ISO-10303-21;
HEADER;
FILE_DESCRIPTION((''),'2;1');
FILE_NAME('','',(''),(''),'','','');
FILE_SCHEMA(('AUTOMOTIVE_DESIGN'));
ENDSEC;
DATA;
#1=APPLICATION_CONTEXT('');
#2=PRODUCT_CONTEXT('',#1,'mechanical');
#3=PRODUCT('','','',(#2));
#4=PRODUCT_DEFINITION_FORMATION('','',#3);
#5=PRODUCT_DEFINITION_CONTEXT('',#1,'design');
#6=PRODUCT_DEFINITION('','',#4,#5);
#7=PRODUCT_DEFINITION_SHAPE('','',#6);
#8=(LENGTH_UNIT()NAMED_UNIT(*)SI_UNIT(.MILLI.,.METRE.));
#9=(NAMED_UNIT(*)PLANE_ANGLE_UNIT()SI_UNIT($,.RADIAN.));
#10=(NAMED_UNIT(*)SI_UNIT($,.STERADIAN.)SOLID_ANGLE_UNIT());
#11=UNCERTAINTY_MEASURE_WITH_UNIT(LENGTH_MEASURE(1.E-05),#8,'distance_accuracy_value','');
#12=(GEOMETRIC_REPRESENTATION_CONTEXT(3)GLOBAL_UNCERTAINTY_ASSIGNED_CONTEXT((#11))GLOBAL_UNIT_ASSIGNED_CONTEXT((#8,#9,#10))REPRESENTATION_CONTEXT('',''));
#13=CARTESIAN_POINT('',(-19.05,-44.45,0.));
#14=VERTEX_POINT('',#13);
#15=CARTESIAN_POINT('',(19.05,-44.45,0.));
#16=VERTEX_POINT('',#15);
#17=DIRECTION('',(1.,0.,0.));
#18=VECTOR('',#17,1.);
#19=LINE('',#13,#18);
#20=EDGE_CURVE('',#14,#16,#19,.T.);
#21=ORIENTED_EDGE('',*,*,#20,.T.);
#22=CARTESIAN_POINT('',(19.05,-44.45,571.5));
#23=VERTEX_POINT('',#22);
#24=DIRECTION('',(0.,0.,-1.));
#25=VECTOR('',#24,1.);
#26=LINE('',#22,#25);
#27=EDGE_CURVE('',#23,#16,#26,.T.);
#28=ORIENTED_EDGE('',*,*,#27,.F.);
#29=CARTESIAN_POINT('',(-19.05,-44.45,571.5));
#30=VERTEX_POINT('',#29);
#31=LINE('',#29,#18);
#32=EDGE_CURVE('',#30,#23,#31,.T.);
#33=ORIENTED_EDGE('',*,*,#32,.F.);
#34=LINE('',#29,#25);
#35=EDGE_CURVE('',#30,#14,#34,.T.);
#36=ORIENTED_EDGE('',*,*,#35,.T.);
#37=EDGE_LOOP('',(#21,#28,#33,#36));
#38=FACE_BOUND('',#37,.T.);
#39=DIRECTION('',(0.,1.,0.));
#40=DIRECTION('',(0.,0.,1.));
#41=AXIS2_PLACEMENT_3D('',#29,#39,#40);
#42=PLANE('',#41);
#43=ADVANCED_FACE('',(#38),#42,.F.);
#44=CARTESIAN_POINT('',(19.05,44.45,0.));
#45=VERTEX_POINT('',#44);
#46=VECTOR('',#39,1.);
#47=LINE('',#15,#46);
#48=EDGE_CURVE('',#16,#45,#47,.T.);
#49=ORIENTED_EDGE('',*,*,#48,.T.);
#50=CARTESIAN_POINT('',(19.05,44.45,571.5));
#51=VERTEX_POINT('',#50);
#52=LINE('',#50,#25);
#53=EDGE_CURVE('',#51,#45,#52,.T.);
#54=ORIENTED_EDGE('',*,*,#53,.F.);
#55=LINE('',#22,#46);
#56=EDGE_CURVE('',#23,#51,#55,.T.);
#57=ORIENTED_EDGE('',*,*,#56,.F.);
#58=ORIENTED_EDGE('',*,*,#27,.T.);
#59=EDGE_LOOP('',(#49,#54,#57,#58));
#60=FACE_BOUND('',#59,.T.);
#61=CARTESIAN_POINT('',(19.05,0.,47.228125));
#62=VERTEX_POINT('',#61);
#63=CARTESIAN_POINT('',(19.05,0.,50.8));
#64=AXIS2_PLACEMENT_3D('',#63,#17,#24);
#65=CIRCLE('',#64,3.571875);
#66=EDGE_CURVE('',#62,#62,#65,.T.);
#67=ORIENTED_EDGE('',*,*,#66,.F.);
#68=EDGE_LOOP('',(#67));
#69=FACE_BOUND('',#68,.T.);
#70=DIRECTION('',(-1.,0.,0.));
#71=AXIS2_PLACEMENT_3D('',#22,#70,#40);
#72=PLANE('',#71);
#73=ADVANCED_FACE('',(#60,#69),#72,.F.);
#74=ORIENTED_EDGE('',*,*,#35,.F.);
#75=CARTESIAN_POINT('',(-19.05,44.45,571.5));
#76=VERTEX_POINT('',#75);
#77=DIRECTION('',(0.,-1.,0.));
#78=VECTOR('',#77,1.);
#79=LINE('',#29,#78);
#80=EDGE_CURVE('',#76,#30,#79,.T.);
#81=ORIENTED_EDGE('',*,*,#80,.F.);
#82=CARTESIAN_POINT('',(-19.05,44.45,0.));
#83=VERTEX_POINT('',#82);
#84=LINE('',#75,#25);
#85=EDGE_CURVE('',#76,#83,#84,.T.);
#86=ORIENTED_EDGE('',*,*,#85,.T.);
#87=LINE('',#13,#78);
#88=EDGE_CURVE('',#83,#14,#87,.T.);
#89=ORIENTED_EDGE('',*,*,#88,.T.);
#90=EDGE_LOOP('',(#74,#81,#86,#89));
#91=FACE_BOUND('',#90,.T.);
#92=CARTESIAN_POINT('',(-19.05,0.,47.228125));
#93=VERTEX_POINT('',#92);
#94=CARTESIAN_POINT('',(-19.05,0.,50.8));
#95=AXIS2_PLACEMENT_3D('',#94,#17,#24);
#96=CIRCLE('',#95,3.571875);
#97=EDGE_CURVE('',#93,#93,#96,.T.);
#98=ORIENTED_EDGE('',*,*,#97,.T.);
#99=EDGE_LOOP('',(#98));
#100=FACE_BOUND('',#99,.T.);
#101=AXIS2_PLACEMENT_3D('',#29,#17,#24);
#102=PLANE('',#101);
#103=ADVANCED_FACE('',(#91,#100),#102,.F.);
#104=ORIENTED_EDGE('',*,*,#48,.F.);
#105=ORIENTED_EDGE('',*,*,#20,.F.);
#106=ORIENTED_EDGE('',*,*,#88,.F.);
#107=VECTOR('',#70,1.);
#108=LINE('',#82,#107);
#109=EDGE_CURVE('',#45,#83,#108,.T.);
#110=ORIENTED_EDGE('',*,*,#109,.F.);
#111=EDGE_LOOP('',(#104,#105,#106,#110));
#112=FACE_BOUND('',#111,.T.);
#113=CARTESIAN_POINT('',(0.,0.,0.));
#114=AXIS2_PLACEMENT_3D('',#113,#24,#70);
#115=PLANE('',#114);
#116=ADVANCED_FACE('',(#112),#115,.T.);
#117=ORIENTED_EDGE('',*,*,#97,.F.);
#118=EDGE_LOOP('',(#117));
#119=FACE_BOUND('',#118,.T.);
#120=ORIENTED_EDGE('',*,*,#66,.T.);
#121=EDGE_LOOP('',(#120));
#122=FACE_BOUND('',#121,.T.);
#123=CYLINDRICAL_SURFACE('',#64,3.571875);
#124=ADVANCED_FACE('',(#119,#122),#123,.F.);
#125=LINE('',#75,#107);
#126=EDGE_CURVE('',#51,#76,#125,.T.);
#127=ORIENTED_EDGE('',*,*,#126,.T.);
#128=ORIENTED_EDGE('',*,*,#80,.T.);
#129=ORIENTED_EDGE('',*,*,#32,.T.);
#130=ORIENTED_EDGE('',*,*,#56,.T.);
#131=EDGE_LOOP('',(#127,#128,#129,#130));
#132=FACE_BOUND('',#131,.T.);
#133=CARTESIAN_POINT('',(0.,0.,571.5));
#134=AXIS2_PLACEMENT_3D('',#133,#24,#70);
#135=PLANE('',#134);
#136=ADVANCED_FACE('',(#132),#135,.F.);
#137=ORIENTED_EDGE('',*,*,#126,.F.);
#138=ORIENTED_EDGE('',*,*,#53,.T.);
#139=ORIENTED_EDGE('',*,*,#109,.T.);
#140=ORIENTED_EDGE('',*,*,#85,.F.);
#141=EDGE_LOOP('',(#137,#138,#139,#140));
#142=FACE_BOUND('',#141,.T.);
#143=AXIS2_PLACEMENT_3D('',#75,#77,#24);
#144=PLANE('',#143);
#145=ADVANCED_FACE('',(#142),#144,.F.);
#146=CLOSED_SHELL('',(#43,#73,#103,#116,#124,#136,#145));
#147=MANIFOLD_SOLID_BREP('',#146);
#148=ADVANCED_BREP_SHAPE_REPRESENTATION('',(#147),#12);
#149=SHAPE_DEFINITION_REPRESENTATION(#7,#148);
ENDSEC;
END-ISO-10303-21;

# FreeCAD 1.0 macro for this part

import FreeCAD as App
import Part
import Sketcher
Q = App.Units.Quantity

doc = App.newDocument("Part")
params = doc.addObject("Spreadsheet::Sheet", "Params")
for row, (alias, value) in enumerate([
    ("sketch1_width", "1.5 in"),
    ("sketch1_height", "3.5 in"),
    ("pad1_length", "22.5 in"),
    ("sketch2_diameter", "0.28125 in"),
    ("hole_diameter", "0.28125 in"),
], start=1):
    params.set(f"A{row}", alias)
    params.set(f"B{row}", "=" + value)
    params.setAlias(f"B{row}", alias)

body = doc.addObject("PartDesign::Body", "Body")

# Sketch on XY plane
sketch1 = body.newObject("Sketcher::SketchObject", "Sketch")
sketch1.AttachmentSupport = (doc.getObject("XY_Plane"), [""])
sketch1.MapMode = "FlatFace"
sketch1.addGeometry(Part.LineSegment(App.Vector(-19.05, 44.45, 0), App.Vector(-19.05, -44.45, 0)), False)
sketch1.addGeometry(Part.LineSegment(App.Vector(-19.05, -44.45, 0), App.Vector(19.05, -44.45, 0)), False)
sketch1.addGeometry(Part.LineSegment(App.Vector(19.05, -44.45, 0), App.Vector(19.05, 44.45, 0)), False)
sketch1.addGeometry(Part.LineSegment(App.Vector(19.05, 44.45, 0), App.Vector(-19.05, 44.45, 0)), False)
sketch1.addConstraint(Sketcher.Constraint("Coincident", 0, 2, 1, 1))
sketch1.addConstraint(Sketcher.Constraint("Coincident", 1, 2, 2, 1))
sketch1.addConstraint(Sketcher.Constraint("Coincident", 2, 2, 3, 1))
sketch1.addConstraint(Sketcher.Constraint("Coincident", 3, 2, 0, 1))
sketch1.addConstraint(Sketcher.Constraint("Vertical", 0))
sketch1.addConstraint(Sketcher.Constraint("Horizontal", 1))
sketch1.addConstraint(Sketcher.Constraint("Vertical", 2))
sketch1.addConstraint(Sketcher.Constraint("Horizontal", 3))
sketch1.addConstraint(Sketcher.Constraint("Symmetric", 0, 2, 2, 2, -1, 1))
sketch1.addConstraint(Sketcher.Constraint("DistanceX", 1, 1, 1, 2, Q("1.5 in")))
sketch1.addConstraint(Sketcher.Constraint("DistanceY", 0, 2, 0, 1, Q("3.5 in")))
sketch1.setExpression("Constraints[9]", "Params.sketch1_width")
sketch1.setExpression("Constraints[10]", "Params.sketch1_height")
pad1 = body.newObject("PartDesign::Pad", "Pad")
pad1.Profile = sketch1
pad1.setExpression("Length", "Params.pad1_length")

# Sketch on YZ plane
sketch2 = body.newObject("Sketcher::SketchObject", "Sketch001")
sketch2.AttachmentSupport = (doc.getObject("YZ_Plane"), [""])
sketch2.MapMode = "FlatFace"
sketch2.AttachmentOffset = App.Placement(App.Vector(0, 0, 0.75 * 25.4), App.Rotation())
sketch2.addGeometry(Part.Circle(App.Vector(0, 50.8, 0), App.Vector(0, 0, 1), 3.571875), False)
sketch2.addConstraint(Sketcher.Constraint("PointOnObject", 0, 3, -2))
sketch2.addConstraint(Sketcher.Constraint("Diameter", 0, Q("0.28125 in")))
sketch2.addConstraint(Sketcher.Constraint("DistanceY", -1, 1, 0, 3, Q("2 in")))
sketch2.setExpression("Constraints[1]", "Params.sketch2_diameter")
doc.recompute()
hole = body.newObject("PartDesign::Hole", "Hole")
hole.Profile = sketch2
hole.ThreadType = "None"
hole.setExpression("Diameter", "Params.hole_diameter")
hole.DepthType = "ThroughAll"

doc.recompute()
